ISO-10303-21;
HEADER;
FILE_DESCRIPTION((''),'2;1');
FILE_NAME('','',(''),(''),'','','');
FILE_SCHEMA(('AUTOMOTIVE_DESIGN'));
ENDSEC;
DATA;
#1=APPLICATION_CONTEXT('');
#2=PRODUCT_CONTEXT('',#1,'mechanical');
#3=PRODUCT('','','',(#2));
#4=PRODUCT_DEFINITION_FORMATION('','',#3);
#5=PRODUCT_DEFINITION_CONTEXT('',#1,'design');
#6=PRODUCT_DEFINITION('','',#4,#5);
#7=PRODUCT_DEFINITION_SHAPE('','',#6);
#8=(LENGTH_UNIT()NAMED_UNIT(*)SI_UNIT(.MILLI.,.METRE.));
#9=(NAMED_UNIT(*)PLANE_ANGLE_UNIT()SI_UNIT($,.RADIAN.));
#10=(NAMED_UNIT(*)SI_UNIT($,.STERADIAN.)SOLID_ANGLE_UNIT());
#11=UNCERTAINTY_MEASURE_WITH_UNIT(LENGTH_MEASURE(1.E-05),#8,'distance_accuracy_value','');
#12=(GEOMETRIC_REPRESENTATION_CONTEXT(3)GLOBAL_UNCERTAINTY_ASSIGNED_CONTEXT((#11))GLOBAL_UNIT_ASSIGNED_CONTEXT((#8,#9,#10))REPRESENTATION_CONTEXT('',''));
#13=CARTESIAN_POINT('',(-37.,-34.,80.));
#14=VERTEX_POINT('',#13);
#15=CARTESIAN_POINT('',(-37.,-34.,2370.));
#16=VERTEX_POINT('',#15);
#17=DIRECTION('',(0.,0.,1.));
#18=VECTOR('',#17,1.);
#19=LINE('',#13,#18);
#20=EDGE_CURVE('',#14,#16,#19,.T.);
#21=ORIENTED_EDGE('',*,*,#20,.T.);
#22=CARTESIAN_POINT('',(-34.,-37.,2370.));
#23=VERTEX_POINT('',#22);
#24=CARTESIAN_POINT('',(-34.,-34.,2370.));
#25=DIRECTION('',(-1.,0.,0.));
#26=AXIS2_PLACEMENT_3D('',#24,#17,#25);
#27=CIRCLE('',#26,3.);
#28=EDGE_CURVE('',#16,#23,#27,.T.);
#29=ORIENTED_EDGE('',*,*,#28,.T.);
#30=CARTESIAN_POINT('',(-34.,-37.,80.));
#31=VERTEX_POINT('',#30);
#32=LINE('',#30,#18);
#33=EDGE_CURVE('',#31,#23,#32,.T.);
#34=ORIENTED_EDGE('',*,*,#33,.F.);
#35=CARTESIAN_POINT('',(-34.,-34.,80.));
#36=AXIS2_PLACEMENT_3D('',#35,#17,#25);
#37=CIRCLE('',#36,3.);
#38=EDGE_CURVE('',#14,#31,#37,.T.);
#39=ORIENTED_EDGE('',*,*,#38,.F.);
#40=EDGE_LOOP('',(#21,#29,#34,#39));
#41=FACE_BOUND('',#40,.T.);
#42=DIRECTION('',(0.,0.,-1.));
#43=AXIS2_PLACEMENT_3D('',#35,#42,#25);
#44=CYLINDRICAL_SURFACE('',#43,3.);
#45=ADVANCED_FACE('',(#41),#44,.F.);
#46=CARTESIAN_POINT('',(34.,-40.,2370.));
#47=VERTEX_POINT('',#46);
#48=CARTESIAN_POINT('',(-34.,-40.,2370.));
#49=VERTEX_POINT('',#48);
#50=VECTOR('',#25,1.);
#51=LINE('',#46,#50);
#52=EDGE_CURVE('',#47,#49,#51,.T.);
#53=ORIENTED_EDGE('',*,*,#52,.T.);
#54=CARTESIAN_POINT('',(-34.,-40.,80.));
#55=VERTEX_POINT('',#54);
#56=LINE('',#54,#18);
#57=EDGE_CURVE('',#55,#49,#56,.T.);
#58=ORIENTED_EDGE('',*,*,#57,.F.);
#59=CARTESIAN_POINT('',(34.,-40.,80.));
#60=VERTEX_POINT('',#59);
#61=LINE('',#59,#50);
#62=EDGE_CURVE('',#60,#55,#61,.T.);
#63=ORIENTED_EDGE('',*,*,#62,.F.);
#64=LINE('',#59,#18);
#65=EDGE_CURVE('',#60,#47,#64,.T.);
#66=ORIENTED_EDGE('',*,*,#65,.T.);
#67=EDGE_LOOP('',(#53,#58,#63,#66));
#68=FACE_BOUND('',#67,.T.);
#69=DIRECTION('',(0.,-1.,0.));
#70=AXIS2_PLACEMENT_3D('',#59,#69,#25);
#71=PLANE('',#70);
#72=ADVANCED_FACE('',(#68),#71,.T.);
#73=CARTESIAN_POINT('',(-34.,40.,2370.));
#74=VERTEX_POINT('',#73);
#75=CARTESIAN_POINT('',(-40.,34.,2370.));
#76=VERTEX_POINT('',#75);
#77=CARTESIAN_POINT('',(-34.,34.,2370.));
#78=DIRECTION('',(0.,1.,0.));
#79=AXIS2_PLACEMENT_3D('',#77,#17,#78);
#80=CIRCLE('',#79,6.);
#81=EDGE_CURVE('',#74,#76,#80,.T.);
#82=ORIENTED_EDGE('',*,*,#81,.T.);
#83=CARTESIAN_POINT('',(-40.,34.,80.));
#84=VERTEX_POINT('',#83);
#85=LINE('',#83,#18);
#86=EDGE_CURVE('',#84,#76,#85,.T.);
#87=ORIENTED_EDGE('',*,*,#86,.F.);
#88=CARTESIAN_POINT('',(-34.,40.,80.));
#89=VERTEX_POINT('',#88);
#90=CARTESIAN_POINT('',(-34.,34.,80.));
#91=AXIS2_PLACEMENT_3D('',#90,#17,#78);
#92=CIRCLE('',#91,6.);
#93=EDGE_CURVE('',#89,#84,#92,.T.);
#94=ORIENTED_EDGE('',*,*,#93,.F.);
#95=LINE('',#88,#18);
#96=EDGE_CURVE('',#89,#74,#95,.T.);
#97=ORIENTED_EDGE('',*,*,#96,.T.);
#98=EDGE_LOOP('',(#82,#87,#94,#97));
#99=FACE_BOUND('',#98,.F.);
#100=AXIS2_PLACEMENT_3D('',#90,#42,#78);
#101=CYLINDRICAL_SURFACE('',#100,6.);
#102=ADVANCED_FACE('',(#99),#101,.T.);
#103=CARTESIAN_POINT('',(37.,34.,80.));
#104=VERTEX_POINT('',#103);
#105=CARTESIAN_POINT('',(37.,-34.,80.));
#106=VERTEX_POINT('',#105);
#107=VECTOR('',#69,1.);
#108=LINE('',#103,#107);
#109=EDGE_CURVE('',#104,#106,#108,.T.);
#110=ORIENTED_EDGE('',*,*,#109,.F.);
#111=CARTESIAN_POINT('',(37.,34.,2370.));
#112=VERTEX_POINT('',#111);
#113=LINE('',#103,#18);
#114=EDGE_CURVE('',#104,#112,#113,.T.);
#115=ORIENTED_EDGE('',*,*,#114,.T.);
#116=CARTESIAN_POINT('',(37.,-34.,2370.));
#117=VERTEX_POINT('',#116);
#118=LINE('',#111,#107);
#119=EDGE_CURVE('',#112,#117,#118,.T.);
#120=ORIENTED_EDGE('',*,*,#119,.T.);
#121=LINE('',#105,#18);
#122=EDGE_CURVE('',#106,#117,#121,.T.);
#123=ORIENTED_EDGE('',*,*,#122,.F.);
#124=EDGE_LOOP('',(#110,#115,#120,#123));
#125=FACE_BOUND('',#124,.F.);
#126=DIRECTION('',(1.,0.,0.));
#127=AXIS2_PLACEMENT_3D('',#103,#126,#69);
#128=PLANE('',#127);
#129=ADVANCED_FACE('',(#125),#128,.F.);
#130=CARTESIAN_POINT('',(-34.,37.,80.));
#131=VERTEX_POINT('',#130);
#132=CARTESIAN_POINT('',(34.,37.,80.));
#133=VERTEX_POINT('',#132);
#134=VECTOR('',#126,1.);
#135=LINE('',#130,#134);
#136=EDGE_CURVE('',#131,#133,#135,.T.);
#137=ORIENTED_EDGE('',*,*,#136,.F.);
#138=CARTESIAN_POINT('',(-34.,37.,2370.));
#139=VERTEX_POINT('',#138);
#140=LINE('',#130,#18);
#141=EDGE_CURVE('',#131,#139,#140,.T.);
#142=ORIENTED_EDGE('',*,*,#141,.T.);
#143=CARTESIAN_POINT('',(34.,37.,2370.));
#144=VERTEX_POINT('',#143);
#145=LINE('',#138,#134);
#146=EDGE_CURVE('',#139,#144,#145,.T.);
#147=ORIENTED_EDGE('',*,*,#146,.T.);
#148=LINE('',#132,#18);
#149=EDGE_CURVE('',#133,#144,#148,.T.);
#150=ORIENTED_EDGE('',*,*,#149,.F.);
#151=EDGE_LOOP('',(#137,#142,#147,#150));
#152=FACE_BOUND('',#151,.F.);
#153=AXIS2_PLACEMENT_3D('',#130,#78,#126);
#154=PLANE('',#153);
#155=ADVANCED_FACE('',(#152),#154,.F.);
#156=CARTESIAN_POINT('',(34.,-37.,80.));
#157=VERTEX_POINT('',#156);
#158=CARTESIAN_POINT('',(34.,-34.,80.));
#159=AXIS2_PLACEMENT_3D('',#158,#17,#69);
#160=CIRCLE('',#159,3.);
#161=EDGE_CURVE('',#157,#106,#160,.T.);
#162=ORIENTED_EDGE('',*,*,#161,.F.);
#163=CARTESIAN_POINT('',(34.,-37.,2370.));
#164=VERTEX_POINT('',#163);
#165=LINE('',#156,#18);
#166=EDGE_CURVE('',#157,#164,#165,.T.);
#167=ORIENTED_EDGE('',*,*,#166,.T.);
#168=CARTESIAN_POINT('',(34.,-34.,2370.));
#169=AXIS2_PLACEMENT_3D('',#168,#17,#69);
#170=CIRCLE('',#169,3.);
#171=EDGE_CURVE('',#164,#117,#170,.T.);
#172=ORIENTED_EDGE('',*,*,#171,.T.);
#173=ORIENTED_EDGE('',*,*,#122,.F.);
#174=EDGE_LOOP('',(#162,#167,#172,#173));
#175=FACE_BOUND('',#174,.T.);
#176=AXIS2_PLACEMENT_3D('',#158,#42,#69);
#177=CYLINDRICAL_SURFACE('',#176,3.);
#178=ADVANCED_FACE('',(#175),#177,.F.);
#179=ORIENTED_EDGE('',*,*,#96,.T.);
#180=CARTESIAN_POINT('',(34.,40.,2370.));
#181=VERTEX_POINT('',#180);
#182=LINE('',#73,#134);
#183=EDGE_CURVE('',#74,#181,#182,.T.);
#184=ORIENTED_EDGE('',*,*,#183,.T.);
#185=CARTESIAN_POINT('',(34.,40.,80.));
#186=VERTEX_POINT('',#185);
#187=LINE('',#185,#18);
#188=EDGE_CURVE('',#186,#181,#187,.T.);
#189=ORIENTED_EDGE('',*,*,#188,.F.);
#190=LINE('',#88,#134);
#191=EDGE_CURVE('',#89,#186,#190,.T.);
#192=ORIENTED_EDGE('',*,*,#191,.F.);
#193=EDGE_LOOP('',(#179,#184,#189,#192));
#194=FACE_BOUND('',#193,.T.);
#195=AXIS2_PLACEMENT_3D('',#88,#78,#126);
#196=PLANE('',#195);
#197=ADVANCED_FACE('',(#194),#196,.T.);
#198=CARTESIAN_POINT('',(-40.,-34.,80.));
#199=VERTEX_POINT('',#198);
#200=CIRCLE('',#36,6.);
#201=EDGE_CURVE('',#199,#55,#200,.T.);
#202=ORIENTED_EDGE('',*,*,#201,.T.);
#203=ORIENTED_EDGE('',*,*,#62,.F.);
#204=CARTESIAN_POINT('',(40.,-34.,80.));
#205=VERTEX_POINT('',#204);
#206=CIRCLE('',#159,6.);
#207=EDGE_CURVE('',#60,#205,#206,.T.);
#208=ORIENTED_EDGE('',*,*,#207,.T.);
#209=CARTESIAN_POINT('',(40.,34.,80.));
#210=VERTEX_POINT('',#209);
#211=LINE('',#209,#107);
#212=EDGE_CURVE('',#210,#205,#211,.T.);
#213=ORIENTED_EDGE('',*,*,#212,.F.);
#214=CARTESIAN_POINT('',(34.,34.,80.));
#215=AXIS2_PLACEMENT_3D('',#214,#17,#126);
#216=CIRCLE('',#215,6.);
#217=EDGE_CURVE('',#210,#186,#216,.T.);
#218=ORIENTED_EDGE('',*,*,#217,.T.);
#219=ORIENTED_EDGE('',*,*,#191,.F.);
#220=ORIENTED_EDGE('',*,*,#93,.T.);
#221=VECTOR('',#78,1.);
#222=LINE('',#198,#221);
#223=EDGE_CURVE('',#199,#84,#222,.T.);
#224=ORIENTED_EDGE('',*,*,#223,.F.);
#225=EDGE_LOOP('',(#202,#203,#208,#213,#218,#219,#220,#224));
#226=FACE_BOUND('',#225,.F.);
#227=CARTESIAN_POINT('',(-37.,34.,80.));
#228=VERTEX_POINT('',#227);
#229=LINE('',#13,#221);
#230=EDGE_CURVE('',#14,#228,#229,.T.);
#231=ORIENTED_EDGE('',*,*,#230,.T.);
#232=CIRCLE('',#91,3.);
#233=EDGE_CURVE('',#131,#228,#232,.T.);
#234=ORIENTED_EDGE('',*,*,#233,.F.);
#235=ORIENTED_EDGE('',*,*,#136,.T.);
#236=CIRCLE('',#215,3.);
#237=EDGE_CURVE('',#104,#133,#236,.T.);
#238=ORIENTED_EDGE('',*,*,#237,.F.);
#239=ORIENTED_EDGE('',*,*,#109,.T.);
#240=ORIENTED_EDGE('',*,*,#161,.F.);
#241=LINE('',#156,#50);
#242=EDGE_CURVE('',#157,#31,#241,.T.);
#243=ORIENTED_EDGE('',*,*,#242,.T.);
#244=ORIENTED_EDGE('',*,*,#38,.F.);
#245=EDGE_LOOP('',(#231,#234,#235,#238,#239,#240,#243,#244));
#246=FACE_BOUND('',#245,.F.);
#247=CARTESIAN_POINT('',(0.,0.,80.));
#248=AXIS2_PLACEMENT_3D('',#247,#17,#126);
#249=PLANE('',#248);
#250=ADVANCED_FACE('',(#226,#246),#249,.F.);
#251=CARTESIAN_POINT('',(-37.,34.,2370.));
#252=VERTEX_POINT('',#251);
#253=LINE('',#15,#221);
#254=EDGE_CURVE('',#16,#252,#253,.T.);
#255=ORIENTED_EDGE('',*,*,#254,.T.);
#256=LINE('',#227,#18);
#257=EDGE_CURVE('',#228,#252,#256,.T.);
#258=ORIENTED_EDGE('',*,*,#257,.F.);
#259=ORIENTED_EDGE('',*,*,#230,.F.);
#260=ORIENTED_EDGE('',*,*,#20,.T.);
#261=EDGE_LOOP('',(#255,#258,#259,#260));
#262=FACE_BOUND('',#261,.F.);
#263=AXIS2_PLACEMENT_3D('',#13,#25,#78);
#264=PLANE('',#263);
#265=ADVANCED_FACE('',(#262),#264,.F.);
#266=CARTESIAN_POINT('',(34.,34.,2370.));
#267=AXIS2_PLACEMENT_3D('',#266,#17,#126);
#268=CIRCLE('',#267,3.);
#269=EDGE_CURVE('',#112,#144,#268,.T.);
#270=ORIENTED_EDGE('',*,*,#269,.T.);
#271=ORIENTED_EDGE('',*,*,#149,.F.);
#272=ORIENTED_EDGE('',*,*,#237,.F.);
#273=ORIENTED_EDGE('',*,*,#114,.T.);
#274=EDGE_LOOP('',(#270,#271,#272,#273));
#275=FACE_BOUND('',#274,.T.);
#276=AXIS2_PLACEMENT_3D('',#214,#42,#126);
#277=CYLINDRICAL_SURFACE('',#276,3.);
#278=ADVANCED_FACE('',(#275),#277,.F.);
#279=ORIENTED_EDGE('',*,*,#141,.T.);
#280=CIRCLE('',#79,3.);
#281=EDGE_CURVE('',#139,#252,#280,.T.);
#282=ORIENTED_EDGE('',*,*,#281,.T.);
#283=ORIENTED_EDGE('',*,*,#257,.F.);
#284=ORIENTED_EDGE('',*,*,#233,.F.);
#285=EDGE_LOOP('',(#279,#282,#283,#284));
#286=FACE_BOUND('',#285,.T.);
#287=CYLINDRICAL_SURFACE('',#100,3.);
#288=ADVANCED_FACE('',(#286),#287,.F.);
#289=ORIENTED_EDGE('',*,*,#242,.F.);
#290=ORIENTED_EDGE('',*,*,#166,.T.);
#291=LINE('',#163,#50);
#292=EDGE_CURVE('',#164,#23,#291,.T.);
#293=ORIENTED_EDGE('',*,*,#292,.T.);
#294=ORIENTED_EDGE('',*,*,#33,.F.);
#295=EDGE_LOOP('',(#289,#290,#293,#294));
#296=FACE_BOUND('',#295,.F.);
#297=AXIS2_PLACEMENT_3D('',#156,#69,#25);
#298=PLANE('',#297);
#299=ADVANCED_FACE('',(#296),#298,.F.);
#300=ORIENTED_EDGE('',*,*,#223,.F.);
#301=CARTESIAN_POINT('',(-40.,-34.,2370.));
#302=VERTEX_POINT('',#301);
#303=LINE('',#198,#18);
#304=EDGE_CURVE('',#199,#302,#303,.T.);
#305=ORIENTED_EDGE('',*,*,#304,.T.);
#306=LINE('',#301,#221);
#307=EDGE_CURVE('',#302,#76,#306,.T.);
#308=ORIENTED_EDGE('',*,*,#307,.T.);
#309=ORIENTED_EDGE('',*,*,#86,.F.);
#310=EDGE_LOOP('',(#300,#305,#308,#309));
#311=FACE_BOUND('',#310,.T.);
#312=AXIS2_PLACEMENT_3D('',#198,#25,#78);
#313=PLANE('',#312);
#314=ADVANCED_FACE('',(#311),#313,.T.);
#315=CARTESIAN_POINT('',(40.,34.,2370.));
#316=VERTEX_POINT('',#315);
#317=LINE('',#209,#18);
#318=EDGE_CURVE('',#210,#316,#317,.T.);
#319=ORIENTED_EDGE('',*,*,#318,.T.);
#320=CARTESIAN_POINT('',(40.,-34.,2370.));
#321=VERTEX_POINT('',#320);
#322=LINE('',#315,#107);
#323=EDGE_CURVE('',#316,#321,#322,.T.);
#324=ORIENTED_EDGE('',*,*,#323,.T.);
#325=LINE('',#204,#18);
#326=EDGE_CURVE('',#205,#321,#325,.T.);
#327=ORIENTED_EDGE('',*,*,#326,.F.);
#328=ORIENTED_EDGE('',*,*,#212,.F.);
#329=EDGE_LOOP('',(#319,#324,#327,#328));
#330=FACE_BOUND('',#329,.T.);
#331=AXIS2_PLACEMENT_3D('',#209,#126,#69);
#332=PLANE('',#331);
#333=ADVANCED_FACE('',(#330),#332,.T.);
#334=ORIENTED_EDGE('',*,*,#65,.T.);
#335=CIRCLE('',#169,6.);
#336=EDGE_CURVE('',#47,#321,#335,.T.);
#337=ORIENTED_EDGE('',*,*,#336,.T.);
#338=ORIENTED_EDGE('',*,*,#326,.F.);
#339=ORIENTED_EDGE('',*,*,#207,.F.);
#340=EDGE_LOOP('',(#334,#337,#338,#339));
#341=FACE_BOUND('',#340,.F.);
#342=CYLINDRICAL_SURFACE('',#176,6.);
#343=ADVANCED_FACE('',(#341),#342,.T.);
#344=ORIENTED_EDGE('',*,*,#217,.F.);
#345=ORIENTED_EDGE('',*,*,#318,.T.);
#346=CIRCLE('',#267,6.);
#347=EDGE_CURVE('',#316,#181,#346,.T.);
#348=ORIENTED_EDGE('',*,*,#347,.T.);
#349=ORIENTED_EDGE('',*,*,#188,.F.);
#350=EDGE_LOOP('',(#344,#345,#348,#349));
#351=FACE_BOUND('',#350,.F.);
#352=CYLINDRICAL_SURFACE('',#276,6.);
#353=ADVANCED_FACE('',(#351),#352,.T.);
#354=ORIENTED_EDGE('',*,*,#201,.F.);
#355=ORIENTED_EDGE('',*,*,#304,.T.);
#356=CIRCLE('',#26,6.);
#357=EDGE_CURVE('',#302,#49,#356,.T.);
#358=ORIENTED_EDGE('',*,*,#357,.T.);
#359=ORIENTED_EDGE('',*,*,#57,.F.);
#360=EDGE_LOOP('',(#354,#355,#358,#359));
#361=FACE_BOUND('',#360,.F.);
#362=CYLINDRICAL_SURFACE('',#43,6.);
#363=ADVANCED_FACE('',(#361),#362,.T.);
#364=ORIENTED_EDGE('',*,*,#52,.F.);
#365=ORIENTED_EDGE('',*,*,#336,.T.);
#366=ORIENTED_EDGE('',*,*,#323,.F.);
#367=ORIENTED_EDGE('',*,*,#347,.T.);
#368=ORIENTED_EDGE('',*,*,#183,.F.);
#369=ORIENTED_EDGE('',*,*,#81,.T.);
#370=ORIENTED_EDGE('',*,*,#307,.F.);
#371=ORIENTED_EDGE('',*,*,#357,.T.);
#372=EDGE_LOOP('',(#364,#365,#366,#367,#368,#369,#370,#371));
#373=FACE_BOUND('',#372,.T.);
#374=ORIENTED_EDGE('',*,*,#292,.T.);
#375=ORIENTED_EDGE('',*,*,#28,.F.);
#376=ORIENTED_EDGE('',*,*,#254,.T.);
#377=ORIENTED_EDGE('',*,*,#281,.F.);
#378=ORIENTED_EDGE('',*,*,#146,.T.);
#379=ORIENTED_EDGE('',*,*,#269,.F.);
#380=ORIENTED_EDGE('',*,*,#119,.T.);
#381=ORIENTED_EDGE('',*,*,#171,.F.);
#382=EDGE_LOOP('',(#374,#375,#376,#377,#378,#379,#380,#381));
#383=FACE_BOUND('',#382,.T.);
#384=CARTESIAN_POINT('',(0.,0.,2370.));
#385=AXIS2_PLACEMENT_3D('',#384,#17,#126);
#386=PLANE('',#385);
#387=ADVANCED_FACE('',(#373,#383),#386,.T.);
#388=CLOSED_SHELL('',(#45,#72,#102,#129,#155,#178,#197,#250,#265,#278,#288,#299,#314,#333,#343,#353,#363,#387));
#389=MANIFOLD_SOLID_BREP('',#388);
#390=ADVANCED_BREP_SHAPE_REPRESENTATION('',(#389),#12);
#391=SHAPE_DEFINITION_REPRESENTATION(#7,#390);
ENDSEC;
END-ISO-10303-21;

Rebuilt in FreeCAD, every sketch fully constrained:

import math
import FreeCAD as App
import Part
import Sketcher
Q = App.Units.Quantity

doc = App.newDocument("Part")
body = doc.addObject("PartDesign::Body", "Body")

sketch1 = doc.addObject("Sketcher::SketchObject", "Sketch")
body.addObject(sketch1)
sketch1.AttachmentSupport = (doc.XY_Plane, [""])
sketch1.MapMode = "FlatFace"
sketch1.AttachmentOffset = App.Placement(App.Vector(0, 0, 80), App.Rotation())
sketch1.addGeometry(Part.LineSegment(App.Vector(-40, 34, 0), App.Vector(-40, -34, 0)), False)
sketch1.addGeometry(Part.ArcOfCircle(Part.Circle(App.Vector(-34, -34, 0), App.Vector(0, 0, 1), 6), math.radians(180), math.radians(270)), False)
sketch1.addGeometry(Part.LineSegment(App.Vector(-34, -40, 0), App.Vector(34, -40, 0)), False)
sketch1.addGeometry(Part.ArcOfCircle(Part.Circle(App.Vector(34, -34, 0), App.Vector(0, 0, 1), 6), math.radians(-90), math.radians(0)), False)
sketch1.addGeometry(Part.LineSegment(App.Vector(40, -34, 0), App.Vector(40, 34, 0)), False)
sketch1.addGeometry(Part.ArcOfCircle(Part.Circle(App.Vector(34, 34, 0), App.Vector(0, 0, 1), 6), math.radians(0), math.radians(90)), False)
sketch1.addGeometry(Part.LineSegment(App.Vector(34, 40, 0), App.Vector(-34, 40, 0)), False)
sketch1.addGeometry(Part.ArcOfCircle(Part.Circle(App.Vector(-34, 34, 0), App.Vector(0, 0, 1), 6), math.radians(90), math.radians(180)), False)
sketch1.addGeometry(Part.ArcOfCircle(Part.Circle(App.Vector(-34, 34, 0), App.Vector(0, 0, 1), 3), math.radians(90), math.radians(180)), False)
sketch1.addGeometry(Part.LineSegment(App.Vector(-34, 37, 0), App.Vector(34, 37, 0)), False)
sketch1.addGeometry(Part.ArcOfCircle(Part.Circle(App.Vector(34, 34, 0), App.Vector(0, 0, 1), 3), math.radians(0), math.radians(90)), False)
sketch1.addGeometry(Part.LineSegment(App.Vector(37, 34, 0), App.Vector(37, -34, 0)), False)
sketch1.addGeometry(Part.ArcOfCircle(Part.Circle(App.Vector(34, -34, 0), App.Vector(0, 0, 1), 3), math.radians(-90), math.radians(0)), False)
sketch1.addGeometry(Part.LineSegment(App.Vector(34, -37, 0), App.Vector(-34, -37, 0)), False)
sketch1.addGeometry(Part.ArcOfCircle(Part.Circle(App.Vector(-34, -34, 0), App.Vector(0, 0, 1), 3), math.radians(180), math.radians(270)), False)
sketch1.addGeometry(Part.LineSegment(App.Vector(-37, -34, 0), App.Vector(-37, 34, 0)), False)
sketch1.addConstraint(Sketcher.Constraint("Tangent", 0, 2, 1, 1))
sketch1.addConstraint(Sketcher.Constraint("Tangent", 1, 2, 2, 1))
sketch1.addConstraint(Sketcher.Constraint("Tangent", 2, 2, 3, 1))
sketch1.addConstraint(Sketcher.Constraint("Tangent", 3, 2, 4, 1))
sketch1.addConstraint(Sketcher.Constraint("Tangent", 4, 2, 5, 1))
sketch1.addConstraint(Sketcher.Constraint("Tangent", 5, 2, 6, 1))
sketch1.addConstraint(Sketcher.Constraint("Tangent", 6, 2, 7, 1))
sketch1.addConstraint(Sketcher.Constraint("Tangent", 7, 2, 0, 1))
sketch1.addConstraint(Sketcher.Constraint("Tangent", 8, 1, 9, 1))
sketch1.addConstraint(Sketcher.Constraint("Tangent", 9, 2, 10, 2))
sketch1.addConstraint(Sketcher.Constraint("Tangent", 10, 1, 11, 1))
sketch1.addConstraint(Sketcher.Constraint("Tangent", 11, 2, 12, 2))
sketch1.addConstraint(Sketcher.Constraint("Tangent", 12, 1, 13, 1))
sketch1.addConstraint(Sketcher.Constraint("Tangent", 13, 2, 14, 2))
sketch1.addConstraint(Sketcher.Constraint("Tangent", 14, 1, 15, 1))
sketch1.addConstraint(Sketcher.Constraint("Tangent", 15, 2, 8, 2))
sketch1.addConstraint(Sketcher.Constraint("Vertical", 0))
sketch1.addConstraint(Sketcher.Constraint("Horizontal", 2))
sketch1.addConstraint(Sketcher.Constraint("Vertical", 4))
sketch1.addConstraint(Sketcher.Constraint("Horizontal", 6))
sketch1.addConstraint(Sketcher.Constraint("Horizontal", 9))
sketch1.addConstraint(Sketcher.Constraint("Vertical", 11))
sketch1.addConstraint(Sketcher.Constraint("Horizontal", 13))
sketch1.addConstraint(Sketcher.Constraint("Vertical", 15))
sketch1.addConstraint(Sketcher.Constraint("Coincident", 8, 3, 7, 3))
sketch1.addConstraint(Sketcher.Constraint("Coincident", 10, 3, 5, 3))
sketch1.addConstraint(Sketcher.Constraint("Coincident", 12, 3, 3, 3))
sketch1.addConstraint(Sketcher.Constraint("Equal", 1, 3))
sketch1.addConstraint(Sketcher.Constraint("Equal", 3, 5))
sketch1.addConstraint(Sketcher.Constraint("Equal", 5, 7))
sketch1.addConstraint(Sketcher.Constraint("Equal", 12, 14))
sketch1.addConstraint(Sketcher.Constraint("Symmetric", 1, 3, 5, 3, -1, 1))
sketch1.addConstraint(Sketcher.Constraint("Equal", 13, 0))
sketch1.addConstraint(Sketcher.Constraint("Radius", 1, Q("6 mm")))
sketch1.addConstraint(Sketcher.Constraint("Radius", 8, Q("3 mm")))
sketch1.addConstraint(Sketcher.Constraint("DistanceX", 0, 2, -1, 1, Q("40 mm")))
pad1 = doc.addObject("PartDesign::Pad", "Pad")
body.addObject(pad1)
pad1.Profile = sketch1
pad1.Length = 2290

doc.recompute()
